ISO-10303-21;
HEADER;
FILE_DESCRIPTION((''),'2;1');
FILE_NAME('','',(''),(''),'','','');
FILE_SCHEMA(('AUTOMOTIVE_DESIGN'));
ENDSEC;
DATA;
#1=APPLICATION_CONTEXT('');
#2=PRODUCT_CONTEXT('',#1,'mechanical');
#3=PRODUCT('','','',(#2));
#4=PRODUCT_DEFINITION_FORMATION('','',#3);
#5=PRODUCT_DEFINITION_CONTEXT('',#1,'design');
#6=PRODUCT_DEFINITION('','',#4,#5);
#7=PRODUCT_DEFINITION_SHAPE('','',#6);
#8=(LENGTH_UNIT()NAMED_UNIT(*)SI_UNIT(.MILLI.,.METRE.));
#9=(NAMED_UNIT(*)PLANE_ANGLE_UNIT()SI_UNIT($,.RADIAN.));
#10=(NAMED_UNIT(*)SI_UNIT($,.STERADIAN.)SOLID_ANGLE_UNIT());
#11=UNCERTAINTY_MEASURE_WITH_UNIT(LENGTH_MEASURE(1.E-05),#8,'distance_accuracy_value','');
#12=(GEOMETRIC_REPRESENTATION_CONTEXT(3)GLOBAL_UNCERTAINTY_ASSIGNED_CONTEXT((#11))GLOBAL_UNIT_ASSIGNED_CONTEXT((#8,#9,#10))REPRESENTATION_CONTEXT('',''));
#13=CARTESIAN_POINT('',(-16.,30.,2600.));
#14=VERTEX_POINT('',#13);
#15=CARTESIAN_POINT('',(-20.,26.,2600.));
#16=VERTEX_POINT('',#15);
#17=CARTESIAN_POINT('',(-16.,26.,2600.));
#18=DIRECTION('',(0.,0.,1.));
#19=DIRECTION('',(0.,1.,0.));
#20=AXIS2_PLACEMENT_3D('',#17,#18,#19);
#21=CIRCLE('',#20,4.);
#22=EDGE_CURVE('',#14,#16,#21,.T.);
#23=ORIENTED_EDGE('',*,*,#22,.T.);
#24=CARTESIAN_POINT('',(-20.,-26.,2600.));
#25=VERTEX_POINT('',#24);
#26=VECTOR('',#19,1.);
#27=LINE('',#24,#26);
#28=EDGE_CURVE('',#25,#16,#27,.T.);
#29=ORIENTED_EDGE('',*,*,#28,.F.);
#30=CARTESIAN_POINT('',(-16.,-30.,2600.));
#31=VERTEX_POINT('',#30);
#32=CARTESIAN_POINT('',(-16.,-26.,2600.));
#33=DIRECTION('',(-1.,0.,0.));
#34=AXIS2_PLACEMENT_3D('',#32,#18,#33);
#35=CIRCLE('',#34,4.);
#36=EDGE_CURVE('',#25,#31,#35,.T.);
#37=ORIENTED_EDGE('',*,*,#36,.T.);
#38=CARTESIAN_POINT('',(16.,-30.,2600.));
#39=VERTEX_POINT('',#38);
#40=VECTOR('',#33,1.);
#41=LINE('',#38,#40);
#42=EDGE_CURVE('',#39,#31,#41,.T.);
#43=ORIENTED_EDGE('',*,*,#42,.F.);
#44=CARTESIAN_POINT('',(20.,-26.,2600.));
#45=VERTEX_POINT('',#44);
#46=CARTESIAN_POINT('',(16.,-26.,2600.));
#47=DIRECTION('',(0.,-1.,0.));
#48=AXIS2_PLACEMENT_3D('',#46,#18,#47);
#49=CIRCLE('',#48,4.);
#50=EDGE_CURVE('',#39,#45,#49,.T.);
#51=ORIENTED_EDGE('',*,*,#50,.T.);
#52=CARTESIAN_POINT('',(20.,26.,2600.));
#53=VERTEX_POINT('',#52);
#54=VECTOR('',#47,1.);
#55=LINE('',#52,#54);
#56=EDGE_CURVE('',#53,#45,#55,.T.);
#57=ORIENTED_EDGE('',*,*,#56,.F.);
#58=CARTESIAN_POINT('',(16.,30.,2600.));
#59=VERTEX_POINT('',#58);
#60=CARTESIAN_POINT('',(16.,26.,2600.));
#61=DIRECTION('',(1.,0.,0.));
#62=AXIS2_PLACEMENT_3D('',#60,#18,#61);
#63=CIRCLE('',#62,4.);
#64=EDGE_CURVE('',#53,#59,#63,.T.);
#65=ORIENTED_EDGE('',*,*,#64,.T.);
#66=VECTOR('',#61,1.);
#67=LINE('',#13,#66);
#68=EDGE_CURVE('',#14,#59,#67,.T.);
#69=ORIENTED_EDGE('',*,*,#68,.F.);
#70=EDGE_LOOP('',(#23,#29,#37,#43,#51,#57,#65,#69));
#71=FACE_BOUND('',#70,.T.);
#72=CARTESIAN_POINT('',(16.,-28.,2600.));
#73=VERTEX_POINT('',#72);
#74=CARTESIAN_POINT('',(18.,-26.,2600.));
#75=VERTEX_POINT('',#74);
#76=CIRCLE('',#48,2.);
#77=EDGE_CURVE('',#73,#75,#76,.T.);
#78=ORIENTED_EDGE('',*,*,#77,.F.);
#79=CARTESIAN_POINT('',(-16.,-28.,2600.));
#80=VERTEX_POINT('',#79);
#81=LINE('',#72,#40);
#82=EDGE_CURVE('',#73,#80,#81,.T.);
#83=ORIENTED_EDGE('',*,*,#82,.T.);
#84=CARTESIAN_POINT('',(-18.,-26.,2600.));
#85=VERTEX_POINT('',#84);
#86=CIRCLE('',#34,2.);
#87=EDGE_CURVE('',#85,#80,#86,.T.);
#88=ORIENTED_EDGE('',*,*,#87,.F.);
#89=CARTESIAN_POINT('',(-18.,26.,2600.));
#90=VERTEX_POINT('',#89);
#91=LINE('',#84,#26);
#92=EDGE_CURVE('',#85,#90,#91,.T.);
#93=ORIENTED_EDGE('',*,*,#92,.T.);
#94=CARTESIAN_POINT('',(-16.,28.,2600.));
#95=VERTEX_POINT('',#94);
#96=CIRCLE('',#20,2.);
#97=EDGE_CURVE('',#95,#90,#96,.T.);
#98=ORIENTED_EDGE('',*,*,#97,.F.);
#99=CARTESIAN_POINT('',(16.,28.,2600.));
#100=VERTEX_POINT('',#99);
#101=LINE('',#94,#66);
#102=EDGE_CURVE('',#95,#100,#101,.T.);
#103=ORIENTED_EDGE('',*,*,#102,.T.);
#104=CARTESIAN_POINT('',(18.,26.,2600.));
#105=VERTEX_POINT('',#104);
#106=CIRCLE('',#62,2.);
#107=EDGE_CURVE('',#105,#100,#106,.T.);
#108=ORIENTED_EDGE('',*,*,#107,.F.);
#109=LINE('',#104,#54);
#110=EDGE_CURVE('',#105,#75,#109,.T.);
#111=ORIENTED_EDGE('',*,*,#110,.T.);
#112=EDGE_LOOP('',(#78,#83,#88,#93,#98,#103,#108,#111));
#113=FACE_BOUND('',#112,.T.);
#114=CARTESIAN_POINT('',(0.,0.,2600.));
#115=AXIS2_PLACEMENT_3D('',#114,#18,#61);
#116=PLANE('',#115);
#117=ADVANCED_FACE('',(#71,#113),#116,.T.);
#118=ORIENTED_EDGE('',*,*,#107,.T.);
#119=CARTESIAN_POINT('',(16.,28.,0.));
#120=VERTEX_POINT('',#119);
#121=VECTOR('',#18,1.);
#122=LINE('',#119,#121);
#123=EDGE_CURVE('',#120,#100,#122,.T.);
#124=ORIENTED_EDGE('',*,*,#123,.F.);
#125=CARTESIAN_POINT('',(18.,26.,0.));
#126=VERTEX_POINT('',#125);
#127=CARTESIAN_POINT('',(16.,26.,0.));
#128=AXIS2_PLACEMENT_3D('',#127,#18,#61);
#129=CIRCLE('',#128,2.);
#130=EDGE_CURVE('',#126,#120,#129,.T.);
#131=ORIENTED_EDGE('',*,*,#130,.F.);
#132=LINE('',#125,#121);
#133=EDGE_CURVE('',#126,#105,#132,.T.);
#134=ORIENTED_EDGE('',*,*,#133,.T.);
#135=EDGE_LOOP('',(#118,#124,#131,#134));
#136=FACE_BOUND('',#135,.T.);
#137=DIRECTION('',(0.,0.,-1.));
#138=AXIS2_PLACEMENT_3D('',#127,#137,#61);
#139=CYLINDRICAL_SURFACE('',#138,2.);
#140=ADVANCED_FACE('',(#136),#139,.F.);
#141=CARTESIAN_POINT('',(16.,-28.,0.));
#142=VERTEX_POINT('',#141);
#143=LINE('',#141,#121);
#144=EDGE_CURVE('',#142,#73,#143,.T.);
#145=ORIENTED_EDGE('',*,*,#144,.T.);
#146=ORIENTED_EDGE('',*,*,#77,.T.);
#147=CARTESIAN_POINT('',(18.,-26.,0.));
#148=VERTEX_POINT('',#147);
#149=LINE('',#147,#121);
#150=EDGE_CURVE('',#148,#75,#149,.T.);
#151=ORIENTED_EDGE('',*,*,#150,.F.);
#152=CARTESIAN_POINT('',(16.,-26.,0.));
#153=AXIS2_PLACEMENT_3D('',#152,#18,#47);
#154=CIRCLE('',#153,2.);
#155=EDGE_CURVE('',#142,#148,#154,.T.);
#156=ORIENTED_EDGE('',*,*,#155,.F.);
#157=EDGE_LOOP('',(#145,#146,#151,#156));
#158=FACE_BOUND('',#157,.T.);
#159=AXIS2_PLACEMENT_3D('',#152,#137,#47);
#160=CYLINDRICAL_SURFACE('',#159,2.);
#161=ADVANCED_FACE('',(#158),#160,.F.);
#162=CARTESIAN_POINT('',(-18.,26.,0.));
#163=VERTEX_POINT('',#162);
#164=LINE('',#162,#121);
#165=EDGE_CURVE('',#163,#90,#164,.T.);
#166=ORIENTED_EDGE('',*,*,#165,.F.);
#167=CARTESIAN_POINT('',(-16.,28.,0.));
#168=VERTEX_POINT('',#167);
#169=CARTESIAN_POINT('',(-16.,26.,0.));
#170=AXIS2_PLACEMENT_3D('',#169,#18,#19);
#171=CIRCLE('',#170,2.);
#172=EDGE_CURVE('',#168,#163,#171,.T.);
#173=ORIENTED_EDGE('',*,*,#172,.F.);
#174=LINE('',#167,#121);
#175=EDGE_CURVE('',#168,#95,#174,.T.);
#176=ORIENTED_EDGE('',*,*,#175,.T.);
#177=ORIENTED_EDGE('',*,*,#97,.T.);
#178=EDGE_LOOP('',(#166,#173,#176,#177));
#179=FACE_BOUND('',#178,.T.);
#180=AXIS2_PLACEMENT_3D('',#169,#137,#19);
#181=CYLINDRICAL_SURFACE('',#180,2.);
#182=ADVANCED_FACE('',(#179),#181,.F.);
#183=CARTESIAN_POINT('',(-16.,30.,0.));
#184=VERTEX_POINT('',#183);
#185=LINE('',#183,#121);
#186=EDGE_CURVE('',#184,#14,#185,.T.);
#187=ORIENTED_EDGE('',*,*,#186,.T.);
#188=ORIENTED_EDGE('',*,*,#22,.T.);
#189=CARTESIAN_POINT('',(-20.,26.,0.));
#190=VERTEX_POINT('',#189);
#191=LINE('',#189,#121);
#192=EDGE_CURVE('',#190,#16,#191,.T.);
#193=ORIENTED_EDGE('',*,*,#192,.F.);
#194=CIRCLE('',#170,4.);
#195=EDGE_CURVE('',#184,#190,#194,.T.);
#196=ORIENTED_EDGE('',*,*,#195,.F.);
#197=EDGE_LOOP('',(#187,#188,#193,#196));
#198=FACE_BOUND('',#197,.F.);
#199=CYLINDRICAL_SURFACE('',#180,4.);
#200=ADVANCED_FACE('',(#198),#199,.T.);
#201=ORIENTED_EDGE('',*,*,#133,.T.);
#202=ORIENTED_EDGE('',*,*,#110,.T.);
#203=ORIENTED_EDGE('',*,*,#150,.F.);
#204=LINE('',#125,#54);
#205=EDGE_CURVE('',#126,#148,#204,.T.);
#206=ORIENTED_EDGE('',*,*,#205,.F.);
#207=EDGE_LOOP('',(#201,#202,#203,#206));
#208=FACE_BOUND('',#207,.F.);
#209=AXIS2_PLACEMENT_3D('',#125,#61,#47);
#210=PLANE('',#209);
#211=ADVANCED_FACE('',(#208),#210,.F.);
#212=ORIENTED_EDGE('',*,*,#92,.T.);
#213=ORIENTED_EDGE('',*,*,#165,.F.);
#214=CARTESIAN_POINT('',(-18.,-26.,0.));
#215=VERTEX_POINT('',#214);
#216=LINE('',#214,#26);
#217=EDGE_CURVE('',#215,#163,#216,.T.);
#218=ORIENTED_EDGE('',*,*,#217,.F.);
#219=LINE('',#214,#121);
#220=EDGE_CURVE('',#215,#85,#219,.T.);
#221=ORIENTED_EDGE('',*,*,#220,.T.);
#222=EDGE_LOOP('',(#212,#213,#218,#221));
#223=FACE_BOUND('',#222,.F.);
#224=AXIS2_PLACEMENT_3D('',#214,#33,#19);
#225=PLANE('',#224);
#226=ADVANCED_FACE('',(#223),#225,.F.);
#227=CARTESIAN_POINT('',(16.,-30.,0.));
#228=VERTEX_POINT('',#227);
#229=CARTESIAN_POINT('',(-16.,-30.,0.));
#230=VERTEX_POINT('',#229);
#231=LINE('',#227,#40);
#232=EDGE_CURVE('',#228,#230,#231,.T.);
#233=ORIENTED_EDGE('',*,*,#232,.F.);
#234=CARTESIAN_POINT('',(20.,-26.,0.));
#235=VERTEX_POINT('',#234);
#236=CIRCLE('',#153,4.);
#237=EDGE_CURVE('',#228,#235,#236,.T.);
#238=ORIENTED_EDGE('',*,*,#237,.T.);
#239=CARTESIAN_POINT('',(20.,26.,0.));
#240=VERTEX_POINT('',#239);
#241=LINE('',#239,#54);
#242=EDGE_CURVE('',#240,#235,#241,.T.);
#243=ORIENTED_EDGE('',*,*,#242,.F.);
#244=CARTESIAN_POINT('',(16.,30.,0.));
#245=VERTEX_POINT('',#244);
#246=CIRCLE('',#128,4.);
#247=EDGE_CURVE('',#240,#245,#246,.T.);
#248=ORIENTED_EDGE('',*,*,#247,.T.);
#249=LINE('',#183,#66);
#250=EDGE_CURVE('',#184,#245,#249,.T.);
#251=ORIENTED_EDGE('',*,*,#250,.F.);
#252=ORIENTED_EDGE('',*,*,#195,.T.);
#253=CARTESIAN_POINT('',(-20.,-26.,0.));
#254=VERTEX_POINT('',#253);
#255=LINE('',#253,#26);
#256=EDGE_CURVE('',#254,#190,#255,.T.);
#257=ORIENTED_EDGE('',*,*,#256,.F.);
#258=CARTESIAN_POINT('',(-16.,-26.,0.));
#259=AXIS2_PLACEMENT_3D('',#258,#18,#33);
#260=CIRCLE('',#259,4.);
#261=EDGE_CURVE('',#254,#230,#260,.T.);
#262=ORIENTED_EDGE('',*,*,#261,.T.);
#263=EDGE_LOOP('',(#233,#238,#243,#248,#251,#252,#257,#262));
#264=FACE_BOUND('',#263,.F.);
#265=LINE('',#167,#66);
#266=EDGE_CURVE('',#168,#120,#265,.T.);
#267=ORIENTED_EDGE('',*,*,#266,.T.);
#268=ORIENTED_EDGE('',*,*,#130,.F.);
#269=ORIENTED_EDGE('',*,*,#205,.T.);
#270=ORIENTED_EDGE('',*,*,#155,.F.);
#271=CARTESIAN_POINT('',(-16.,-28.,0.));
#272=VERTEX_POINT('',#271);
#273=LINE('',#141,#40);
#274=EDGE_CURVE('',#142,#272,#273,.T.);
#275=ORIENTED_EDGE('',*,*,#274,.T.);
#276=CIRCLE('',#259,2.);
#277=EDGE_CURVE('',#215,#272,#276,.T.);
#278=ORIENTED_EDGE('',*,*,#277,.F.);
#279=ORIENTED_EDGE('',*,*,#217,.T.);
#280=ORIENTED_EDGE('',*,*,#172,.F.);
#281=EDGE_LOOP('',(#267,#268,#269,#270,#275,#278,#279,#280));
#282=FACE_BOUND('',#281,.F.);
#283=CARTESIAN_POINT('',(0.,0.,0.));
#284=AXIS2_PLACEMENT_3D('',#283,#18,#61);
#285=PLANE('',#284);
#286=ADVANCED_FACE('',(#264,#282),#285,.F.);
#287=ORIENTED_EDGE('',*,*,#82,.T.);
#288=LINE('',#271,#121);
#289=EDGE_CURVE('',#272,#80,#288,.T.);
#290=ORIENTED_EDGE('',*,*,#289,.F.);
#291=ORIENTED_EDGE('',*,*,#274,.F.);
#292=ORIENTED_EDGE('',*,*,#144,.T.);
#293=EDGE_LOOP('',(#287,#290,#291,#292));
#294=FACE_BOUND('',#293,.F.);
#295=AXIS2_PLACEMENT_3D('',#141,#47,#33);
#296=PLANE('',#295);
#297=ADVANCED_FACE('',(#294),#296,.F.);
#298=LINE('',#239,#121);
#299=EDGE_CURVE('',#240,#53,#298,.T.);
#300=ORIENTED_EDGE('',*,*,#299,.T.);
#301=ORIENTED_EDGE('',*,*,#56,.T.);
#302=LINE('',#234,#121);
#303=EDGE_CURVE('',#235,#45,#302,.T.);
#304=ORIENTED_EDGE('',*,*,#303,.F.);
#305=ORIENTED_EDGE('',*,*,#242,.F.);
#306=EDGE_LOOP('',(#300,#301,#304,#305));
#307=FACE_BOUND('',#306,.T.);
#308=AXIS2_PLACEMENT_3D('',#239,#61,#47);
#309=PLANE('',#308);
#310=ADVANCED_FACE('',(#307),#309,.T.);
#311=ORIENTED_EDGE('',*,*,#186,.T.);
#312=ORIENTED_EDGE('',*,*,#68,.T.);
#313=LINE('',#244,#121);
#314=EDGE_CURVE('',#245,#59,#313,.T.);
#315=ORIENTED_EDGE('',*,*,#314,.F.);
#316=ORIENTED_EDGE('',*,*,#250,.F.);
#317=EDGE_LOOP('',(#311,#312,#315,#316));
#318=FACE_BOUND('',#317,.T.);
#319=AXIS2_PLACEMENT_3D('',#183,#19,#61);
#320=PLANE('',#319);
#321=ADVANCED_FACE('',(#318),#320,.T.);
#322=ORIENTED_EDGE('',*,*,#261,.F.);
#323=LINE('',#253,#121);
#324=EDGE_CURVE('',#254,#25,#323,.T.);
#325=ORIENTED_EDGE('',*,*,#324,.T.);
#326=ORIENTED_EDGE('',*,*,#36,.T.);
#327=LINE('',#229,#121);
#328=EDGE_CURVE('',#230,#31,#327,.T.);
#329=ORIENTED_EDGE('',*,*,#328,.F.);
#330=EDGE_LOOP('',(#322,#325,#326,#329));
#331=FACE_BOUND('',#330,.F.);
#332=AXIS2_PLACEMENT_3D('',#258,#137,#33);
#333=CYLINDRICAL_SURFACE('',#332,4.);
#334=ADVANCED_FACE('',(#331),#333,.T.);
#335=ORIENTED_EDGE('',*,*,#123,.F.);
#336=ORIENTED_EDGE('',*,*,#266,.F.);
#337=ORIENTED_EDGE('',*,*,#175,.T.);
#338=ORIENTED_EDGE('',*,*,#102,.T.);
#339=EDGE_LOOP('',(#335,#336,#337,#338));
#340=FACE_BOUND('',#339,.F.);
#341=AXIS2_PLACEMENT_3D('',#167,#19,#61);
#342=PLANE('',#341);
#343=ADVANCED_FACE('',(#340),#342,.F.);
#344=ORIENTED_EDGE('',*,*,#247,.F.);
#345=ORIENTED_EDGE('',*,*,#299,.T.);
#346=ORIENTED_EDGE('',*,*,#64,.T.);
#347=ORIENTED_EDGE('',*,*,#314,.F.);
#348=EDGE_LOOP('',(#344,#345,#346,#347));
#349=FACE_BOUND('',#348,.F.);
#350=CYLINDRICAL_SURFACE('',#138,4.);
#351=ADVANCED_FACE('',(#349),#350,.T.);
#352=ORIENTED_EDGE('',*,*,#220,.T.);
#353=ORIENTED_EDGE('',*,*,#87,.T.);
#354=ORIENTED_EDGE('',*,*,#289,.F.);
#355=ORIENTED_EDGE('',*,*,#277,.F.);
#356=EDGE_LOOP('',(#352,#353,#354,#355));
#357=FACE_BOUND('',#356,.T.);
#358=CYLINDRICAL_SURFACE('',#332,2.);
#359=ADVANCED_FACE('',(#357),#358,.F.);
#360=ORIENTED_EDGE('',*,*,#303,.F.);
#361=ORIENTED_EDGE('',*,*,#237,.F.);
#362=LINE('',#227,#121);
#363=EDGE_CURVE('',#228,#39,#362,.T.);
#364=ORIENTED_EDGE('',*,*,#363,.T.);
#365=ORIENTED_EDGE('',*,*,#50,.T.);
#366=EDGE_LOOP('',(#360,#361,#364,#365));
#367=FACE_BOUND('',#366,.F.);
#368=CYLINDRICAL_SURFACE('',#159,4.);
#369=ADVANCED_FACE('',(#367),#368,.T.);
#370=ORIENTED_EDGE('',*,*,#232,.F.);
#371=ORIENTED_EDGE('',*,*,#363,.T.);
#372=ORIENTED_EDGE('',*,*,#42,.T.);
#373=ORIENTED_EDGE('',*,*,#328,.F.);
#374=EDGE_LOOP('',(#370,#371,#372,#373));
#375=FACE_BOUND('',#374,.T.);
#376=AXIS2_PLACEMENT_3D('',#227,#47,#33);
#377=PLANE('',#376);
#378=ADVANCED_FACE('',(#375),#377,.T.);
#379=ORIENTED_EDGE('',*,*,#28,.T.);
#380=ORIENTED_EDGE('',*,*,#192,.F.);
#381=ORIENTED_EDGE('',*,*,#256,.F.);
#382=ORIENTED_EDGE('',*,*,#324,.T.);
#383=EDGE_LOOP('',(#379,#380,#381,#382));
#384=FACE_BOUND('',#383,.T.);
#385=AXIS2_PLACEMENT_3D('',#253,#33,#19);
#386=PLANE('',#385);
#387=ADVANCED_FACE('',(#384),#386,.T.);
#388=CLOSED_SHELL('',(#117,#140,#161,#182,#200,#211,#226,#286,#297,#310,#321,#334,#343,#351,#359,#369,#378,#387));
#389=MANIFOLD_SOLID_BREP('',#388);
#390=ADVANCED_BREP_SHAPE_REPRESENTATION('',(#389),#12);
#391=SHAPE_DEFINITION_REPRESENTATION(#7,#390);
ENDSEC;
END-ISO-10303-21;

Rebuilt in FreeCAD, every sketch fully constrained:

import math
import FreeCAD as App
import Part
import Sketcher
Q = App.Units.Quantity

doc = App.newDocument("Part")
params = doc.addObject("Spreadsheet::Sheet", "Params")
for row, (alias, value) in enumerate([
    ("sketch1_radius", "4 mm"),
    ("sketch1_radius2", "2 mm"),
    ("pad1_length", "2600 mm"),
], start=1):
    params.set(f"A{row}", alias)
    params.set(f"B{row}", "=" + value)
    params.setAlias(f"B{row}", alias)

body = doc.addObject("PartDesign::Body", "Body")

# Sketch on XY plane
sketch1 = body.newObject("Sketcher::SketchObject", "Sketch")
sketch1.AttachmentSupport = (doc.getObject("XY_Plane"), [""])
sketch1.MapMode = "FlatFace"
sketch1.addGeometry(Part.LineSegment(App.Vector(-20, 26, 0), App.Vector(-20, -26, 0)), False)
sketch1.addGeometry(Part.ArcOfCircle(Part.Circle(App.Vector(-16, -26, 0), App.Vector(0, 0, 1), 4), math.radians(180), math.radians(270)), False)
sketch1.addGeometry(Part.LineSegment(App.Vector(-16, -30, 0), App.Vector(16, -30, 0)), False)
sketch1.addGeometry(Part.ArcOfCircle(Part.Circle(App.Vector(16, -26, 0), App.Vector(0, 0, 1), 4), math.radians(-90), math.radians(0)), False)
sketch1.addGeometry(Part.LineSegment(App.Vector(20, -26, 0), App.Vector(20, 26, 0)), False)
sketch1.addGeometry(Part.ArcOfCircle(Part.Circle(App.Vector(16, 26, 0), App.Vector(0, 0, 1), 4), math.radians(0), math.radians(90)), False)
sketch1.addGeometry(Part.LineSegment(App.Vector(16, 30, 0), App.Vector(-16, 30, 0)), False)
sketch1.addGeometry(Part.ArcOfCircle(Part.Circle(App.Vector(-16, 26, 0), App.Vector(0, 0, 1), 4), math.radians(90), math.radians(180)), False)
sketch1.addGeometry(Part.ArcOfCircle(Part.Circle(App.Vector(-16, 26, 0), App.Vector(0, 0, 1), 2), math.radians(90), math.radians(180)), False)
sketch1.addGeometry(Part.LineSegment(App.Vector(-16, 28, 0), App.Vector(16, 28, 0)), False)
sketch1.addGeometry(Part.ArcOfCircle(Part.Circle(App.Vector(16, 26, 0), App.Vector(0, 0, 1), 2), math.radians(0), math.radians(90)), False)
sketch1.addGeometry(Part.LineSegment(App.Vector(18, 26, 0), App.Vector(18, -26, 0)), False)
sketch1.addGeometry(Part.ArcOfCircle(Part.Circle(App.Vector(16, -26, 0), App.Vector(0, 0, 1), 2), math.radians(-90), math.radians(0)), False)
sketch1.addGeometry(Part.LineSegment(App.Vector(16, -28, 0), App.Vector(-16, -28, 0)), False)
sketch1.addGeometry(Part.ArcOfCircle(Part.Circle(App.Vector(-16, -26, 0), App.Vector(0, 0, 1), 2), math.radians(180), math.radians(270)), False)
sketch1.addGeometry(Part.LineSegment(App.Vector(-18, -26, 0), App.Vector(-18, 26, 0)), False)
sketch1.addConstraint(Sketcher.Constraint("Tangent", 0, 2, 1, 1))
sketch1.addConstraint(Sketcher.Constraint("Tangent", 1, 2, 2, 1))
sketch1.addConstraint(Sketcher.Constraint("Tangent", 2, 2, 3, 1))
sketch1.addConstraint(Sketcher.Constraint("Tangent", 3, 2, 4, 1))
sketch1.addConstraint(Sketcher.Constraint("Tangent", 4, 2, 5, 1))
sketch1.addConstraint(Sketcher.Constraint("Tangent", 5, 2, 6, 1))
sketch1.addConstraint(Sketcher.Constraint("Tangent", 6, 2, 7, 1))
sketch1.addConstraint(Sketcher.Constraint("Tangent", 7, 2, 0, 1))
sketch1.addConstraint(Sketcher.Constraint("Tangent", 8, 1, 9, 1))
sketch1.addConstraint(Sketcher.Constraint("Tangent", 9, 2, 10, 2))
sketch1.addConstraint(Sketcher.Constraint("Tangent", 10, 1, 11, 1))
sketch1.addConstraint(Sketcher.Constraint("Tangent", 11, 2, 12, 2))
sketch1.addConstraint(Sketcher.Constraint("Tangent", 12, 1, 13, 1))
sketch1.addConstraint(Sketcher.Constraint("Tangent", 13, 2, 14, 2))
sketch1.addConstraint(Sketcher.Constraint("Tangent", 14, 1, 15, 1))
sketch1.addConstraint(Sketcher.Constraint("Tangent", 15, 2, 8, 2))
sketch1.addConstraint(Sketcher.Constraint("Vertical", 0))
sketch1.addConstraint(Sketcher.Constraint("Horizontal", 2))
sketch1.addConstraint(Sketcher.Constraint("Vertical", 4))
sketch1.addConstraint(Sketcher.Constraint("Horizontal", 6))
sketch1.addConstraint(Sketcher.Constraint("Horizontal", 9))
sketch1.addConstraint(Sketcher.Constraint("Vertical", 11))
sketch1.addConstraint(Sketcher.Constraint("Horizontal", 13))
sketch1.addConstraint(Sketcher.Constraint("Vertical", 15))
sketch1.addConstraint(Sketcher.Constraint("Coincident", 8, 3, 7, 3))
sketch1.addConstraint(Sketcher.Constraint("Coincident", 10, 3, 5, 3))
sketch1.addConstraint(Sketcher.Constraint("Coincident", 12, 3, 3, 3))
sketch1.addConstraint(Sketcher.Constraint("Equal", 1, 3))
sketch1.addConstraint(Sketcher.Constraint("Equal", 3, 5))
sketch1.addConstraint(Sketcher.Constraint("Equal", 5, 7))
sketch1.addConstraint(Sketcher.Constraint("Equal", 12, 14))
sketch1.addConstraint(Sketcher.Constraint("Symmetric", 1, 3, 5, 3, -1, 1))
sketch1.addConstraint(Sketcher.Constraint("Radius", 1, Q("4 mm")))
sketch1.addConstraint(Sketcher.Constraint("Radius", 8, Q("2 mm")))
sketch1.addConstraint(Sketcher.Constraint("DistanceX", 0, 2, -1, 1, Q("20 mm")))
sketch1.addConstraint(Sketcher.Constraint("DistanceY", 1, 2, -1, 1, Q("30 mm")))
sketch1.setExpression("Constraints[32]", "Params.sketch1_radius")
sketch1.setExpression("Constraints[33]", "Params.sketch1_radius2")
pad1 = body.newObject("PartDesign::Pad", "Pad")
pad1.Profile = sketch1
pad1.setExpression("Length", "Params.pad1_length")

doc.recompute()
